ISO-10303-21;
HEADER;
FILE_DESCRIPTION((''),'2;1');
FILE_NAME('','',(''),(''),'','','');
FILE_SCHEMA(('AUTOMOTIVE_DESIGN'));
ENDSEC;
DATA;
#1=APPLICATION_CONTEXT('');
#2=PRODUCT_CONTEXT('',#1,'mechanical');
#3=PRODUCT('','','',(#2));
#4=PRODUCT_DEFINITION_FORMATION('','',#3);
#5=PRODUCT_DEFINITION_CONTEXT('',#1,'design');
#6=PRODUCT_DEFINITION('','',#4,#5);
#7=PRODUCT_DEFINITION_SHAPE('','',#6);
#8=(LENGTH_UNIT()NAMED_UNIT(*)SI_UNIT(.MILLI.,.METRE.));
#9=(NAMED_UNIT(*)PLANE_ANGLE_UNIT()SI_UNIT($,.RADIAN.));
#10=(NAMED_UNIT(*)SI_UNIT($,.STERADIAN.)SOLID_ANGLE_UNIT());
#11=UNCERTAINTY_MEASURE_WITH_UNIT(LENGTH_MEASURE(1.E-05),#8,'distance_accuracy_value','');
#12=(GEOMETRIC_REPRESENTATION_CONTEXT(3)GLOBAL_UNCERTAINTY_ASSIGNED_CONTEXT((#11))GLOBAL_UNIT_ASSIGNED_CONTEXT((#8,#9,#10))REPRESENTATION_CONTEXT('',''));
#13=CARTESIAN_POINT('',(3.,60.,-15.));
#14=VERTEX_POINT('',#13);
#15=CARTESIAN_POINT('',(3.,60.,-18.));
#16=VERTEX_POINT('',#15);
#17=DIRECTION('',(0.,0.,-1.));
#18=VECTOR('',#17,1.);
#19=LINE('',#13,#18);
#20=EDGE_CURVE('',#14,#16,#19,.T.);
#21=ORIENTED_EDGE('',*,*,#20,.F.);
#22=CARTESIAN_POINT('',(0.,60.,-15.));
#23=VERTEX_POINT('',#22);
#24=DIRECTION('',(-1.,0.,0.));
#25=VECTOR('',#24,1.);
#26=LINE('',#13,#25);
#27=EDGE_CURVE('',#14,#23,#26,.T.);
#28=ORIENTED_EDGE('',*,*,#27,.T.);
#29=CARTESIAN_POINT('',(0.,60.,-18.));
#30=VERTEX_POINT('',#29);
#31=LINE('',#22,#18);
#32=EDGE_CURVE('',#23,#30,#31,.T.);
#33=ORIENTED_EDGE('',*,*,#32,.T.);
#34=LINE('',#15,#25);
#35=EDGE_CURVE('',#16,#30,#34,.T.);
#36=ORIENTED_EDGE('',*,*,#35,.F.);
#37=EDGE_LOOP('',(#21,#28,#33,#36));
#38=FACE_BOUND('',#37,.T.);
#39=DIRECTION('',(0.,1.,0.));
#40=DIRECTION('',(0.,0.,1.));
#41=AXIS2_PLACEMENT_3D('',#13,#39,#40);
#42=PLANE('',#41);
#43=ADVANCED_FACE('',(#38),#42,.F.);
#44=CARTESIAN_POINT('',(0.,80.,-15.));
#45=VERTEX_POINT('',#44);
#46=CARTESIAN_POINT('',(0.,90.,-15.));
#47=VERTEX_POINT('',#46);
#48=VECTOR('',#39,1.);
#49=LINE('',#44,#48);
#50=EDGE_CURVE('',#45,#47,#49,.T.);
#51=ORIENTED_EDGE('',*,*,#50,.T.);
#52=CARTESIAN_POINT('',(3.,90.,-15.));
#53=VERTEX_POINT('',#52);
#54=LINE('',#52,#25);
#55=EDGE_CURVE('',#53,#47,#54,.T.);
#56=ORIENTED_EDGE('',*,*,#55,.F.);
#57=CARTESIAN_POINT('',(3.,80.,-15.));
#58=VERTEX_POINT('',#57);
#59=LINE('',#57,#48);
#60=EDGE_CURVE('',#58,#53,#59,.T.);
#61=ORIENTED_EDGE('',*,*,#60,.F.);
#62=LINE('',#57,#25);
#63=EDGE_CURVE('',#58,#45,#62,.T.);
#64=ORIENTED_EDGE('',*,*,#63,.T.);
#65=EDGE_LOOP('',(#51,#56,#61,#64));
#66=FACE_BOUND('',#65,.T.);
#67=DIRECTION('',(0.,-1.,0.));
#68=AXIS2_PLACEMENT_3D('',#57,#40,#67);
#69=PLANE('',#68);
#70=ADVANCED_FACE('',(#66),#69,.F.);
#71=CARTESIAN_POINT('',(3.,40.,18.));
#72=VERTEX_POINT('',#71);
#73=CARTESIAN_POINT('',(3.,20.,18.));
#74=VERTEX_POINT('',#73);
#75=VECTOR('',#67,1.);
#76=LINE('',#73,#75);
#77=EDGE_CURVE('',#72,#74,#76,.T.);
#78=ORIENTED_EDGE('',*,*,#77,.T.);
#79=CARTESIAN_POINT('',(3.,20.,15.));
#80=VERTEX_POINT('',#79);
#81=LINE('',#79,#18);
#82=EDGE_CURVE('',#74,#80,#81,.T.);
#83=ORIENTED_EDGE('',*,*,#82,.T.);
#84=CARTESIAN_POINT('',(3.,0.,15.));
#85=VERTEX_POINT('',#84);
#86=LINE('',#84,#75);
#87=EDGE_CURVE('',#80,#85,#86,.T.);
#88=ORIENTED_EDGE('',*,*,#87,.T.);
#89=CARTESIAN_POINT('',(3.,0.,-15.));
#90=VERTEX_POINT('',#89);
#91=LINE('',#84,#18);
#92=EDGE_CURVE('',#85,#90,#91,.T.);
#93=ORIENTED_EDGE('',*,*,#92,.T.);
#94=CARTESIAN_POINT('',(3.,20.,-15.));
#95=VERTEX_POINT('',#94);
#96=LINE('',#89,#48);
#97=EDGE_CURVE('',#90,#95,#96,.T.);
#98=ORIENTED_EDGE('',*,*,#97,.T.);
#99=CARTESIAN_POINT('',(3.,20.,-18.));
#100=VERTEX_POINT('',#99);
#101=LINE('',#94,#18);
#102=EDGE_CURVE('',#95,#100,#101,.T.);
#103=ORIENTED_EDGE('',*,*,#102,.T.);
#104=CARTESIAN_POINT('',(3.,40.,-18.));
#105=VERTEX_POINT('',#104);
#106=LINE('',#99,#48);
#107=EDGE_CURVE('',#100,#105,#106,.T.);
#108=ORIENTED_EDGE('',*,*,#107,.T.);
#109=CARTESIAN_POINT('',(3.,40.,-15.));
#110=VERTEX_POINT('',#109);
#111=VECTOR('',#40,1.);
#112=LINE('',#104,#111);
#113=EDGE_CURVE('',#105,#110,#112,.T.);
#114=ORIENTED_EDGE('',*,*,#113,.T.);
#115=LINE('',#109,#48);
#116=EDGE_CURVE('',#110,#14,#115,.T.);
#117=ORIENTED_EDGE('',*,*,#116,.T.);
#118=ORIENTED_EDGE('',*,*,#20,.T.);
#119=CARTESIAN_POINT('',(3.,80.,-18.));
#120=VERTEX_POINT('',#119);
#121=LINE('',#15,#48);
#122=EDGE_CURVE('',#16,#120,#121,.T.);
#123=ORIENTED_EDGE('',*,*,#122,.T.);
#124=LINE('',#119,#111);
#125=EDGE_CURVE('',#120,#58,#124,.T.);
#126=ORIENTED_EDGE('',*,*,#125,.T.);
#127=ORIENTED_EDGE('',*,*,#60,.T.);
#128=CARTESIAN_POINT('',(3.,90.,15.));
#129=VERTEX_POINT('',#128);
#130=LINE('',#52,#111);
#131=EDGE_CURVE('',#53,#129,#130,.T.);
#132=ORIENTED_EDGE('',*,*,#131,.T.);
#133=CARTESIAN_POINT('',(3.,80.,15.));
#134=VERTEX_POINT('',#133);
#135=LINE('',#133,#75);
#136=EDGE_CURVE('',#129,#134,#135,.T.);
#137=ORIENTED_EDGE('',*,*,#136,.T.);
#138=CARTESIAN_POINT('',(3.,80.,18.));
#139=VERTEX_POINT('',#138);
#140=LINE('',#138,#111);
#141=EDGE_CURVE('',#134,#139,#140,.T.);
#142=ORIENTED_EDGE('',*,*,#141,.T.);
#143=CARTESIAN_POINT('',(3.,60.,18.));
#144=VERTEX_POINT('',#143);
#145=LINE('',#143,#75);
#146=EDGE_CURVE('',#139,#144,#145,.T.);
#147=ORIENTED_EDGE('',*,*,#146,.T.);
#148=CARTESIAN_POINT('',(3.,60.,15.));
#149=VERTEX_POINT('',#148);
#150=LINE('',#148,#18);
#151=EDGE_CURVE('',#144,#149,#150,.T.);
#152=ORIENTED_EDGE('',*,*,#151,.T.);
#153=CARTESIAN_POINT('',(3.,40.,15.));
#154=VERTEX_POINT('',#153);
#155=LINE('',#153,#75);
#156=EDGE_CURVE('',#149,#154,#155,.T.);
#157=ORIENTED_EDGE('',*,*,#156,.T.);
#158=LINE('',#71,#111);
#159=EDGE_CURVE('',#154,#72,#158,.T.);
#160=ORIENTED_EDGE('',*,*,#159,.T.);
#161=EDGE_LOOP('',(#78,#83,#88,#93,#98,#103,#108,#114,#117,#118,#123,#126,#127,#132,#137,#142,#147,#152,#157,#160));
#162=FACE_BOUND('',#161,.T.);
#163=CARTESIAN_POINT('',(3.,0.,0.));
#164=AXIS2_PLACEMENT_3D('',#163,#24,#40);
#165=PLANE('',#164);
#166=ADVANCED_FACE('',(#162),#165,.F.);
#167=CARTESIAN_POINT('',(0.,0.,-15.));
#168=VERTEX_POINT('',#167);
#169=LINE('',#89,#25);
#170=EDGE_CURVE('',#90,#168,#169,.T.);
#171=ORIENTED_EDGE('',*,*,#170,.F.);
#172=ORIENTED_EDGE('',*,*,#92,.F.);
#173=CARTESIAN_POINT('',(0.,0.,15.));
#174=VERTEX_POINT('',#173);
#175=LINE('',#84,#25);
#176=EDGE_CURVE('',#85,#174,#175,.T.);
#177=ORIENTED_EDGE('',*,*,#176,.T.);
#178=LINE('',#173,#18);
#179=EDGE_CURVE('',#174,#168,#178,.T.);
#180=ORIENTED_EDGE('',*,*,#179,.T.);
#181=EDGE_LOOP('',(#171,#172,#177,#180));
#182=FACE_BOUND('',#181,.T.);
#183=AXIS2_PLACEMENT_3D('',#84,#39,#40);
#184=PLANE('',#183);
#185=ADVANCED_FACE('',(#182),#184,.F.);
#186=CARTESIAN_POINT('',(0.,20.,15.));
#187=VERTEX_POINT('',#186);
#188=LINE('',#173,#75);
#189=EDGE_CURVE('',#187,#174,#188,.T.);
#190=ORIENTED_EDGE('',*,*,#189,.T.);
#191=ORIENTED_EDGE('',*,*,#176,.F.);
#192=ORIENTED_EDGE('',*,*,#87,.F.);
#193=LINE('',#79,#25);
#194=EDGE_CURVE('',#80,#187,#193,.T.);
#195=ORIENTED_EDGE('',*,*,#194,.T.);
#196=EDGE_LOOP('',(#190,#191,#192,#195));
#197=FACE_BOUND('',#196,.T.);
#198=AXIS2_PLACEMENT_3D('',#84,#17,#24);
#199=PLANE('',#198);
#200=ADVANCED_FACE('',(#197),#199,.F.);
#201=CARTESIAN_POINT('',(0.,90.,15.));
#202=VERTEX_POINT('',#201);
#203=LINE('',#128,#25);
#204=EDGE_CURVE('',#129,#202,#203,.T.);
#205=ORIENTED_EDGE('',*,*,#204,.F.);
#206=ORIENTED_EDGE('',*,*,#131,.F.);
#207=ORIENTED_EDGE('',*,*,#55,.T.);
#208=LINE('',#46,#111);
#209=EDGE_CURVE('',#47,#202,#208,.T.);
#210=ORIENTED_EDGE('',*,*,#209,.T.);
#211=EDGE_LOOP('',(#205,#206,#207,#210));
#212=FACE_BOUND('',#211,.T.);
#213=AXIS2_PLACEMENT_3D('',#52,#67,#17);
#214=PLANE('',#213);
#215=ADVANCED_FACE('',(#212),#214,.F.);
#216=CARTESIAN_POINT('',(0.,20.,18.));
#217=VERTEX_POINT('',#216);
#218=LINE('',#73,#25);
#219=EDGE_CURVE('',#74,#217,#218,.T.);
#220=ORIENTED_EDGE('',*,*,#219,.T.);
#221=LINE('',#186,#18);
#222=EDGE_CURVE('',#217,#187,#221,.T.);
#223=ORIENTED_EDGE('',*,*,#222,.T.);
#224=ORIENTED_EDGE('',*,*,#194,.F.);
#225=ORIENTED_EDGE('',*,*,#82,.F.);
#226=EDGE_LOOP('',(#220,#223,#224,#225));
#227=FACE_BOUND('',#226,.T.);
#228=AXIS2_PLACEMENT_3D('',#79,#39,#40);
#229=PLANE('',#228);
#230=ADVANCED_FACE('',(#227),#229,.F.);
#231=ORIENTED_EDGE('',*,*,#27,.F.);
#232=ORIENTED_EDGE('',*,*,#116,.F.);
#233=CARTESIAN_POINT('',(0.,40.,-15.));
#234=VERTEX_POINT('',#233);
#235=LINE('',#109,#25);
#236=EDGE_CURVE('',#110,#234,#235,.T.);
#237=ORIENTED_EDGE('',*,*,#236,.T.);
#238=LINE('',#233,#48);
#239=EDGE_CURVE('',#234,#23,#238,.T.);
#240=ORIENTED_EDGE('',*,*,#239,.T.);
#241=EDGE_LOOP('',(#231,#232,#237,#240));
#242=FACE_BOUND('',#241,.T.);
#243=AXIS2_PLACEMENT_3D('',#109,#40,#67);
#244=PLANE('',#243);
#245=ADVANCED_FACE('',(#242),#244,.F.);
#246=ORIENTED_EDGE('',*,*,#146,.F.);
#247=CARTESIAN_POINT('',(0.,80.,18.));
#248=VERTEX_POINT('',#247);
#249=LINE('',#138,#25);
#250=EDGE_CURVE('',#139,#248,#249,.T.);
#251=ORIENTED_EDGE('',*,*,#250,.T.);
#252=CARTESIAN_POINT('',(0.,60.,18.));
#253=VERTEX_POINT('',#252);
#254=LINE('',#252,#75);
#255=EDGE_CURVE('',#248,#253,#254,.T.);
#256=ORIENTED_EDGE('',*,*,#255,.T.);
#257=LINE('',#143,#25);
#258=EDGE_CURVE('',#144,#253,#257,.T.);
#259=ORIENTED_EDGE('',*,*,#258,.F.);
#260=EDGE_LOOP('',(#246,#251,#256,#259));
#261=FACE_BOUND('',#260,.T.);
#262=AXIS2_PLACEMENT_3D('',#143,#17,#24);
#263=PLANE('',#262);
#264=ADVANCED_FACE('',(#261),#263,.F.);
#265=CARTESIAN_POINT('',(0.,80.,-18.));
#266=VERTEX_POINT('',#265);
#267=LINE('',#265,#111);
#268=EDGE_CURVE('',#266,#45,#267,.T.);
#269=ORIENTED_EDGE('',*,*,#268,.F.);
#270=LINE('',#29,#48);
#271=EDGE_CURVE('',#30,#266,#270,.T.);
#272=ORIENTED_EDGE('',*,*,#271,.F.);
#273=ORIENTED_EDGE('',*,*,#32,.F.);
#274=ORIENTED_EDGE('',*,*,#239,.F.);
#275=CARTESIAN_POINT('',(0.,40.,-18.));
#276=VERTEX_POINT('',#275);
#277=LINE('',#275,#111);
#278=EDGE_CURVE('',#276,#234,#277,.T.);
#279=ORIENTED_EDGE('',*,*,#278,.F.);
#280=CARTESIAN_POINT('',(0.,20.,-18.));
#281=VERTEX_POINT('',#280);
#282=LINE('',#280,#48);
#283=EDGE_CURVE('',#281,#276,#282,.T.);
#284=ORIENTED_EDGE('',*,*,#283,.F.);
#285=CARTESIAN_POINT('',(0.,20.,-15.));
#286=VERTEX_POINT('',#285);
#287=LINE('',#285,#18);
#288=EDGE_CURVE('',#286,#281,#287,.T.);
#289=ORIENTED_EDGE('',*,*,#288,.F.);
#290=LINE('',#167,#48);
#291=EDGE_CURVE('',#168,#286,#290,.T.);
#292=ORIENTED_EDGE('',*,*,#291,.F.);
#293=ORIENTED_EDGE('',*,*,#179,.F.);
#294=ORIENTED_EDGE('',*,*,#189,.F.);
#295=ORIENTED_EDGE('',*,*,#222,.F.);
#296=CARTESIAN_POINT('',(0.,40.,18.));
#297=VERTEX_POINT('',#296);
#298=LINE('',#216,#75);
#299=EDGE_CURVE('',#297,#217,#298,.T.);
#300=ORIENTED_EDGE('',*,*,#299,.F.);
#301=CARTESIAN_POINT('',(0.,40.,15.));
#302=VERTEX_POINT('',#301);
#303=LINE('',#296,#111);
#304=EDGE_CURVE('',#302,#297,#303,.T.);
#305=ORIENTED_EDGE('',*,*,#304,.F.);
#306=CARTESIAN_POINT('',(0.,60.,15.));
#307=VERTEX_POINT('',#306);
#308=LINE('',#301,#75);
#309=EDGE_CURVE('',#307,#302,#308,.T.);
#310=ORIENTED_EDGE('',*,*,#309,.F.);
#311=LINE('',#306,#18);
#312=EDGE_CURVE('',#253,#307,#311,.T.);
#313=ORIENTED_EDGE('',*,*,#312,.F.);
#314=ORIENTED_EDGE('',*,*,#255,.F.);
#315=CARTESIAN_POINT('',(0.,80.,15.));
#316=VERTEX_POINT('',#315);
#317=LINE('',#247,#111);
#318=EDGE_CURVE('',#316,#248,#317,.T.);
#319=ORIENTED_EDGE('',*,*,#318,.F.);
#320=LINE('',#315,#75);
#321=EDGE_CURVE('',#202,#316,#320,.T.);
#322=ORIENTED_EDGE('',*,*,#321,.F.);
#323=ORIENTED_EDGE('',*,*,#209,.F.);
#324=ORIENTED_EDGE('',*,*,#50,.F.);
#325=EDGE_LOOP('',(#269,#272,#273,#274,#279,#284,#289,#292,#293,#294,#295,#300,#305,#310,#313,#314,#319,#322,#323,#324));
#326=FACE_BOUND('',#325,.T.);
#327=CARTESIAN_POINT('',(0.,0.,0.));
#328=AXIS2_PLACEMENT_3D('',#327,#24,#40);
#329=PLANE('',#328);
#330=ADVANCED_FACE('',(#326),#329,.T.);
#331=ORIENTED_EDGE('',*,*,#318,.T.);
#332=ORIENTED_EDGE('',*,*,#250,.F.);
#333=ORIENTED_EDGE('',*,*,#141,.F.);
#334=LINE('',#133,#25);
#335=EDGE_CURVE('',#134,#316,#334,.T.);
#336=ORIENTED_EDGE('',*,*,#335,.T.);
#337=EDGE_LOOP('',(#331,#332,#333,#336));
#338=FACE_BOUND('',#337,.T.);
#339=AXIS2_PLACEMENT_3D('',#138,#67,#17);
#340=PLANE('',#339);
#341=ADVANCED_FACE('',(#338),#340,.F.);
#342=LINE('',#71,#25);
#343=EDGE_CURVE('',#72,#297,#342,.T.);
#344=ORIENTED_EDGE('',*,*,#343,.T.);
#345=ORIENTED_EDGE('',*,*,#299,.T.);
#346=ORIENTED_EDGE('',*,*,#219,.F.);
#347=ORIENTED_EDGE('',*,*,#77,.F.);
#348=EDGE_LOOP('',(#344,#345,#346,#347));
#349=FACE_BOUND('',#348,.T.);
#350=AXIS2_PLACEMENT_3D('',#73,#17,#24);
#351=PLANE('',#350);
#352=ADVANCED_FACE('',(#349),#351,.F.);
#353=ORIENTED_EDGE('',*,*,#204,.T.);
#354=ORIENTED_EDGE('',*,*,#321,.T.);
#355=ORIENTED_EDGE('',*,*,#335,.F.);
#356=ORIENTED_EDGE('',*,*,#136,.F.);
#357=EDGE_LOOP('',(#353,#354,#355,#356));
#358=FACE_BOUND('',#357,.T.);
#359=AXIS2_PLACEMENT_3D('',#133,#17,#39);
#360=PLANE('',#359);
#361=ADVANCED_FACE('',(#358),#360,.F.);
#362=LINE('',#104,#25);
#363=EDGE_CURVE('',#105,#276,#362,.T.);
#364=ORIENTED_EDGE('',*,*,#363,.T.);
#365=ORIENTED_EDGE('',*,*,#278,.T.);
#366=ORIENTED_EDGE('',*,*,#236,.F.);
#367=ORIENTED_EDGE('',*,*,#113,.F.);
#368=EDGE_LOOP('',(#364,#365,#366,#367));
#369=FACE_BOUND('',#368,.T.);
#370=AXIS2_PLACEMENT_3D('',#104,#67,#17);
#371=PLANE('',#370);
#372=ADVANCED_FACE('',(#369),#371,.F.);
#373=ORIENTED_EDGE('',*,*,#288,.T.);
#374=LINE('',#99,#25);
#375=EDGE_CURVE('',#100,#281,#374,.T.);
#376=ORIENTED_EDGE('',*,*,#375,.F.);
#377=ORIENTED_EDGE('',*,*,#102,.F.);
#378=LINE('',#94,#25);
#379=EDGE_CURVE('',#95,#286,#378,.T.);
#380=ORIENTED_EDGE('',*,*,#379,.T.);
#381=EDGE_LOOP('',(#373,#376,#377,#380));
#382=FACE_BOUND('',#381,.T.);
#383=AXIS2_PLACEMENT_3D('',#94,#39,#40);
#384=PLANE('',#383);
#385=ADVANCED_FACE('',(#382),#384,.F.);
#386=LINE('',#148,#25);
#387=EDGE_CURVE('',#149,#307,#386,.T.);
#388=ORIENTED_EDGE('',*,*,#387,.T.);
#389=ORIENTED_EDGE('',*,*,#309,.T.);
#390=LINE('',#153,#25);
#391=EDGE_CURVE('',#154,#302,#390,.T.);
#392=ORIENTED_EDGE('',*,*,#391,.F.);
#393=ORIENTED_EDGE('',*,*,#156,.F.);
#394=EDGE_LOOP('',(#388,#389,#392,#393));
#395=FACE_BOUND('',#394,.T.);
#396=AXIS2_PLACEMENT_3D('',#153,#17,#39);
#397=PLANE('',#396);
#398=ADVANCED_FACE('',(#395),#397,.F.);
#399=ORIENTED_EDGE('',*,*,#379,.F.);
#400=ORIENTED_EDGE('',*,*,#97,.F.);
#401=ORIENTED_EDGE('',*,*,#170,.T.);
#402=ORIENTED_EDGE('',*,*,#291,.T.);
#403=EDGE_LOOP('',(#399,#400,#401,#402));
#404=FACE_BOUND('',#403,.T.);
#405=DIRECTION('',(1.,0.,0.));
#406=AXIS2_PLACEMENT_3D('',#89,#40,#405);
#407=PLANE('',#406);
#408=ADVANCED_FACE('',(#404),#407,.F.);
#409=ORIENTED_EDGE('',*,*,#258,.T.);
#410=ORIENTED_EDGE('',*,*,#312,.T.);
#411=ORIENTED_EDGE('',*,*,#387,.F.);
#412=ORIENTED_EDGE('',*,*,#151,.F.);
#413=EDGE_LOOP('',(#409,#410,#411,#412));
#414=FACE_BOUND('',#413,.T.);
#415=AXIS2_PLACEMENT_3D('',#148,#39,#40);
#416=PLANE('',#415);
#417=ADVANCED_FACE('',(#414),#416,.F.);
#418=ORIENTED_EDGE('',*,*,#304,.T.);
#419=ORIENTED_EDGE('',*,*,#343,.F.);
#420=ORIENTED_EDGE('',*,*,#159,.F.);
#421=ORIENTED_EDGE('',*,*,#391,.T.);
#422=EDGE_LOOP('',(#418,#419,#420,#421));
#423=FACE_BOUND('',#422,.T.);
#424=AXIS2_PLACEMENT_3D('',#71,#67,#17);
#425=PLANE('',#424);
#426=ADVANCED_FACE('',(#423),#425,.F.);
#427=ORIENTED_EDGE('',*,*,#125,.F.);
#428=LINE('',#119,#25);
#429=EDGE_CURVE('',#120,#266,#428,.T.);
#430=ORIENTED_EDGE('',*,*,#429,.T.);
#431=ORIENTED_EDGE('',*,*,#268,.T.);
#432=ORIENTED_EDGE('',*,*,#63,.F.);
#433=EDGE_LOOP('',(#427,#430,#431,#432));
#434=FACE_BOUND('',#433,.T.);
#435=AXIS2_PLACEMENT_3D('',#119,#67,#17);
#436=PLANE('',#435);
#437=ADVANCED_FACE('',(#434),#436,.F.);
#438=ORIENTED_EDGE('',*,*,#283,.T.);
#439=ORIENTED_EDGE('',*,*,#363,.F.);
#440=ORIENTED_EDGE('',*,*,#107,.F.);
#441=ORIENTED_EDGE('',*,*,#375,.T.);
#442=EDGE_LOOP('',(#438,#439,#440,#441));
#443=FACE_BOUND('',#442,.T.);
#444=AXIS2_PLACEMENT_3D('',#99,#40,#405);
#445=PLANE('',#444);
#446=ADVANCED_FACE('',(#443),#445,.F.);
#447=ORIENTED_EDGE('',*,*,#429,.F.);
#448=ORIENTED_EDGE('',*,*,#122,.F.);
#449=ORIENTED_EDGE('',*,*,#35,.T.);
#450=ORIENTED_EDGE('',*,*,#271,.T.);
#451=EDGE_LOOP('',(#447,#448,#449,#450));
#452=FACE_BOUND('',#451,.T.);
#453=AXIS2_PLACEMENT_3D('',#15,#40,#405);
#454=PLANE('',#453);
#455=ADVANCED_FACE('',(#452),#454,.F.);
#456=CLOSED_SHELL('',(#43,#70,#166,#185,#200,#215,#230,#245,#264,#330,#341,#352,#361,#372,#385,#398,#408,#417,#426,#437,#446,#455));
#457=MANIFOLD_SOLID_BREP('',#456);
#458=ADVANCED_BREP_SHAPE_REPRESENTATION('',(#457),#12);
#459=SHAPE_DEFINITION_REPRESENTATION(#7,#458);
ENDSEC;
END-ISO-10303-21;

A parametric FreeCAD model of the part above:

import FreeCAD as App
import Part
import Sketcher
from FreeCAD import Vector
Q = App.Units.Quantity


def add_polygon(sketch, points):
    """Adds a closed chain of lines whose ends are joined by coincident constraints."""
    first, n = sketch.GeometryCount, len(points)
    for a, b in zip(points, points[1:] + points[:1]):
        sketch.addGeometry(Part.LineSegment(App.Vector(*a, 0), App.Vector(*b, 0)), False)
    for i in range(n):
        sketch.addConstraint(Sketcher.Constraint("Coincident", first + i, 2, first + (i + 1) % n, 1))

doc = App.newDocument("Part")
body = doc.addObject("PartDesign::Body", "Body")

sketch1 = body.newObject("Sketcher::SketchObject", "Sketch")
sketch1.AttachmentSupport = (doc.getObject("YZ_Plane"), [""])
sketch1.MapMode = "FlatFace"
add_polygon(sketch1, [(0, 15), (0, -15), (20, -15), (20, -18), (40, -18), (40, -15), (60, -15), (60, -18), (80, -18), (80, -15), (90, -15), (90, 15), (80, 15), (80, 18), (60, 18), (60, 15), (40, 15), (40, 18), (20, 18), (20, 15)])
sketch1.addConstraint(Sketcher.Constraint("Vertical", 0))
sketch1.addConstraint(Sketcher.Constraint("Horizontal", 1))
sketch1.addConstraint(Sketcher.Constraint("Vertical", 2))
sketch1.addConstraint(Sketcher.Constraint("Horizontal", 3))
sketch1.addConstraint(Sketcher.Constraint("Vertical", 4))
sketch1.addConstraint(Sketcher.Constraint("Horizontal", 5))
sketch1.addConstraint(Sketcher.Constraint("Vertical", 6))
sketch1.addConstraint(Sketcher.Constraint("Horizontal", 7))
sketch1.addConstraint(Sketcher.Constraint("Vertical", 8))
sketch1.addConstraint(Sketcher.Constraint("Horizontal", 9))
sketch1.addConstraint(Sketcher.Constraint("Vertical", 10))
sketch1.addConstraint(Sketcher.Constraint("Horizontal", 11))
sketch1.addConstraint(Sketcher.Constraint("Vertical", 12))
sketch1.addConstraint(Sketcher.Constraint("Horizontal", 13))
sketch1.addConstraint(Sketcher.Constraint("Vertical", 14))
sketch1.addConstraint(Sketcher.Constraint("Horizontal", 15))
sketch1.addConstraint(Sketcher.Constraint("Vertical", 16))
sketch1.addConstraint(Sketcher.Constraint("Horizontal", 17))
sketch1.addConstraint(Sketcher.Constraint("Vertical", 18))
sketch1.addConstraint(Sketcher.Constraint("Horizontal", 19))
sketch1.addConstraint(Sketcher.Constraint("Symmetric", 0, 2, 19, 2, -1, 1))
sketch1.addConstraint(Sketcher.Constraint("Symmetric", 8, 2, 11, 2, -1))
sketch1.addConstraint(Sketcher.Constraint("Symmetric", 6, 2, 13, 2, -1))
sketch1.addConstraint(Sketcher.Constraint("Symmetric", 4, 2, 15, 2, -1))
sketch1.addConstraint(Sketcher.Constraint("Symmetric", 2, 2, 17, 2, -1))
sketch1.addConstraint(Sketcher.Constraint("Horizontal", 1, 2, 4, 2))
sketch1.addConstraint(Sketcher.Constraint("Horizontal", 3, 2, 6, 2))
sketch1.addConstraint(Sketcher.Constraint("Horizontal", 5, 2, 8, 2))
sketch1.addConstraint(Sketcher.Constraint("Equal", 1, 3))
sketch1.addConstraint(Sketcher.Constraint("Equal", 3, 5))
sketch1.addConstraint(Sketcher.Constraint("Equal", 5, 7))
sketch1.addConstraint(Sketcher.Constraint("DistanceX", 1, 1, 1, 2, Q("20 mm")))
sketch1.addConstraint(Sketcher.Constraint("DistanceX", 9, 1, 9, 2, Q("10 mm")))
sketch1.addConstraint(Sketcher.Constraint("DistanceY", 0, 2, 0, 1, Q("30 mm")))
sketch1.addConstraint(Sketcher.Constraint("DistanceY", 2, 2, 2, 1, Q("3 mm")))
pad1 = body.newObject("PartDesign::Pad", "Pad")
pad1.Profile = sketch1
pad1.Length = 3

doc.recompute()
